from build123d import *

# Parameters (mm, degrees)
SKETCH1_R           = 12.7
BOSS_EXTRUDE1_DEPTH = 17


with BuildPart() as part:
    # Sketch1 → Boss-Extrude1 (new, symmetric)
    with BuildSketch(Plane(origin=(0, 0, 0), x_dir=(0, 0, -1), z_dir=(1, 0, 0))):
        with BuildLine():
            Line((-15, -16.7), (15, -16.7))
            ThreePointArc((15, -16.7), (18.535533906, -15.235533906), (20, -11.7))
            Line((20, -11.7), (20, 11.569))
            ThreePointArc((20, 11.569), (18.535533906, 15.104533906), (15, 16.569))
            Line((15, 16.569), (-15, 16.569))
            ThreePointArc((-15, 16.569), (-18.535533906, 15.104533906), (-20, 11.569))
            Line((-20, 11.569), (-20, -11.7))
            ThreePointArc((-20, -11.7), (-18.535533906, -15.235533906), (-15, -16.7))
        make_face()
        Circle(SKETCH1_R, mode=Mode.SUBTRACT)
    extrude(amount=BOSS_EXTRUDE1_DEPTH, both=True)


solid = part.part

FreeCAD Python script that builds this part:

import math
import FreeCAD as App
import Part
import Sketcher
from FreeCAD import Vector

doc = App.newDocument("Part")
body = doc.addObject("PartDesign::Body", "Body")

# Sketch on YZ plane
sketch1 = body.newObject("Sketcher::SketchObject", "Sketch")
sketch1.AttachmentSupport = (doc.getObject("YZ_Plane"), [""])
sketch1.MapMode = "FlatFace"
sketch1.addGeometry(Part.LineSegment(Vector(-17, 15, 0), Vector(-17, -15, 0)), False)
sketch1.addGeometry(Part.ArcOfCircle(Part.Circle(Vector(-12, -15, 0), Vector(0, 0, 1), 5), math.radians(180), math.radians(270)), False)
sketch1.addGeometry(Part.LineSegment(Vector(-12, -20, 0), Vector(12, -20, 0)), False)
sketch1.addGeometry(Part.ArcOfCircle(Part.Circle(Vector(12, -15, 0), Vector(0, 0, 1), 5), math.radians(-90), math.radians(0)), False)
sketch1.addGeometry(Part.LineSegment(Vector(17, -15, 0), Vector(17, 15, 0)), False)
sketch1.addGeometry(Part.ArcOfCircle(Part.Circle(Vector(12, 15, 0), Vector(0, 0, 1), 5), math.radians(0), math.radians(90)), False)
sketch1.addGeometry(Part.LineSegment(Vector(12, 20, 0), Vector(-12, 20, 0)), False)
sketch1.addGeometry(Part.ArcOfCircle(Part.Circle(Vector(-12, 15, 0), Vector(0, 0, 1), 5), math.radians(90), math.radians(180)), False)
sketch1.addGeometry(Part.Circle(Vector(0, 0, 0), Vector(0, 0, 1), 13), False)
sketch1.addConstraint(Sketcher.Constraint("Tangent", 0, 2, 1, 1))
sketch1.addConstraint(Sketcher.Constraint("Tangent", 1, 2, 2, 1))
sketch1.addConstraint(Sketcher.Constraint("Tangent", 2, 2, 3, 1))
sketch1.addConstraint(Sketcher.Constraint("Tangent", 3, 2, 4, 1))
sketch1.addConstraint(Sketcher.Constraint("Tangent", 4, 2, 5, 1))
sketch1.addConstraint(Sketcher.Constraint("Tangent", 5, 2, 6, 1))
sketch1.addConstraint(Sketcher.Constraint("Tangent", 6, 2, 7, 1))
sketch1.addConstraint(Sketcher.Constraint("Tangent", 7, 2, 0, 1))
sketch1.addConstraint(Sketcher.Constraint("Vertical", 0))
sketch1.addConstraint(Sketcher.Constraint("Horizontal", 2))
sketch1.addConstraint(Sketcher.Constraint("Vertical", 4))
sketch1.addConstraint(Sketcher.Constraint("Horizontal", 6))
sketch1.addConstraint(Sketcher.Constraint("Coincident", 8, 3, -1, 1))
sketch1.addConstraint(Sketcher.Constraint("Equal", 1, 3))
sketch1.addConstraint(Sketcher.Constraint("Equal", 3, 5))
sketch1.addConstraint(Sketcher.Constraint("Equal", 5, 7))
sketch1.addConstraint(Sketcher.Constraint("Radius", 1, 5.0))
sketch1.addConstraint(Sketcher.Constraint("Diameter", 8, 25.4))
sketch1.addConstraint(Sketcher.Constraint("DistanceY", 0, 2, 0, 1, 30.0))
sketch1.addConstraint(Sketcher.Constraint("DistanceY", 1, 3, -1, 1, 15.0))
sketch1.addConstraint(Sketcher.Constraint("DistanceX", 1, 3, -1, 1, 11.7))
sketch1.addConstraint(Sketcher.Constraint("DistanceX", 2, 1, 2, 2, 23.269))
pad1 = body.newObject("PartDesign::Pad", "Pad")
pad1.Profile = sketch1
pad1.Length = 34
pad1.Midplane = True

doc.recompute()
